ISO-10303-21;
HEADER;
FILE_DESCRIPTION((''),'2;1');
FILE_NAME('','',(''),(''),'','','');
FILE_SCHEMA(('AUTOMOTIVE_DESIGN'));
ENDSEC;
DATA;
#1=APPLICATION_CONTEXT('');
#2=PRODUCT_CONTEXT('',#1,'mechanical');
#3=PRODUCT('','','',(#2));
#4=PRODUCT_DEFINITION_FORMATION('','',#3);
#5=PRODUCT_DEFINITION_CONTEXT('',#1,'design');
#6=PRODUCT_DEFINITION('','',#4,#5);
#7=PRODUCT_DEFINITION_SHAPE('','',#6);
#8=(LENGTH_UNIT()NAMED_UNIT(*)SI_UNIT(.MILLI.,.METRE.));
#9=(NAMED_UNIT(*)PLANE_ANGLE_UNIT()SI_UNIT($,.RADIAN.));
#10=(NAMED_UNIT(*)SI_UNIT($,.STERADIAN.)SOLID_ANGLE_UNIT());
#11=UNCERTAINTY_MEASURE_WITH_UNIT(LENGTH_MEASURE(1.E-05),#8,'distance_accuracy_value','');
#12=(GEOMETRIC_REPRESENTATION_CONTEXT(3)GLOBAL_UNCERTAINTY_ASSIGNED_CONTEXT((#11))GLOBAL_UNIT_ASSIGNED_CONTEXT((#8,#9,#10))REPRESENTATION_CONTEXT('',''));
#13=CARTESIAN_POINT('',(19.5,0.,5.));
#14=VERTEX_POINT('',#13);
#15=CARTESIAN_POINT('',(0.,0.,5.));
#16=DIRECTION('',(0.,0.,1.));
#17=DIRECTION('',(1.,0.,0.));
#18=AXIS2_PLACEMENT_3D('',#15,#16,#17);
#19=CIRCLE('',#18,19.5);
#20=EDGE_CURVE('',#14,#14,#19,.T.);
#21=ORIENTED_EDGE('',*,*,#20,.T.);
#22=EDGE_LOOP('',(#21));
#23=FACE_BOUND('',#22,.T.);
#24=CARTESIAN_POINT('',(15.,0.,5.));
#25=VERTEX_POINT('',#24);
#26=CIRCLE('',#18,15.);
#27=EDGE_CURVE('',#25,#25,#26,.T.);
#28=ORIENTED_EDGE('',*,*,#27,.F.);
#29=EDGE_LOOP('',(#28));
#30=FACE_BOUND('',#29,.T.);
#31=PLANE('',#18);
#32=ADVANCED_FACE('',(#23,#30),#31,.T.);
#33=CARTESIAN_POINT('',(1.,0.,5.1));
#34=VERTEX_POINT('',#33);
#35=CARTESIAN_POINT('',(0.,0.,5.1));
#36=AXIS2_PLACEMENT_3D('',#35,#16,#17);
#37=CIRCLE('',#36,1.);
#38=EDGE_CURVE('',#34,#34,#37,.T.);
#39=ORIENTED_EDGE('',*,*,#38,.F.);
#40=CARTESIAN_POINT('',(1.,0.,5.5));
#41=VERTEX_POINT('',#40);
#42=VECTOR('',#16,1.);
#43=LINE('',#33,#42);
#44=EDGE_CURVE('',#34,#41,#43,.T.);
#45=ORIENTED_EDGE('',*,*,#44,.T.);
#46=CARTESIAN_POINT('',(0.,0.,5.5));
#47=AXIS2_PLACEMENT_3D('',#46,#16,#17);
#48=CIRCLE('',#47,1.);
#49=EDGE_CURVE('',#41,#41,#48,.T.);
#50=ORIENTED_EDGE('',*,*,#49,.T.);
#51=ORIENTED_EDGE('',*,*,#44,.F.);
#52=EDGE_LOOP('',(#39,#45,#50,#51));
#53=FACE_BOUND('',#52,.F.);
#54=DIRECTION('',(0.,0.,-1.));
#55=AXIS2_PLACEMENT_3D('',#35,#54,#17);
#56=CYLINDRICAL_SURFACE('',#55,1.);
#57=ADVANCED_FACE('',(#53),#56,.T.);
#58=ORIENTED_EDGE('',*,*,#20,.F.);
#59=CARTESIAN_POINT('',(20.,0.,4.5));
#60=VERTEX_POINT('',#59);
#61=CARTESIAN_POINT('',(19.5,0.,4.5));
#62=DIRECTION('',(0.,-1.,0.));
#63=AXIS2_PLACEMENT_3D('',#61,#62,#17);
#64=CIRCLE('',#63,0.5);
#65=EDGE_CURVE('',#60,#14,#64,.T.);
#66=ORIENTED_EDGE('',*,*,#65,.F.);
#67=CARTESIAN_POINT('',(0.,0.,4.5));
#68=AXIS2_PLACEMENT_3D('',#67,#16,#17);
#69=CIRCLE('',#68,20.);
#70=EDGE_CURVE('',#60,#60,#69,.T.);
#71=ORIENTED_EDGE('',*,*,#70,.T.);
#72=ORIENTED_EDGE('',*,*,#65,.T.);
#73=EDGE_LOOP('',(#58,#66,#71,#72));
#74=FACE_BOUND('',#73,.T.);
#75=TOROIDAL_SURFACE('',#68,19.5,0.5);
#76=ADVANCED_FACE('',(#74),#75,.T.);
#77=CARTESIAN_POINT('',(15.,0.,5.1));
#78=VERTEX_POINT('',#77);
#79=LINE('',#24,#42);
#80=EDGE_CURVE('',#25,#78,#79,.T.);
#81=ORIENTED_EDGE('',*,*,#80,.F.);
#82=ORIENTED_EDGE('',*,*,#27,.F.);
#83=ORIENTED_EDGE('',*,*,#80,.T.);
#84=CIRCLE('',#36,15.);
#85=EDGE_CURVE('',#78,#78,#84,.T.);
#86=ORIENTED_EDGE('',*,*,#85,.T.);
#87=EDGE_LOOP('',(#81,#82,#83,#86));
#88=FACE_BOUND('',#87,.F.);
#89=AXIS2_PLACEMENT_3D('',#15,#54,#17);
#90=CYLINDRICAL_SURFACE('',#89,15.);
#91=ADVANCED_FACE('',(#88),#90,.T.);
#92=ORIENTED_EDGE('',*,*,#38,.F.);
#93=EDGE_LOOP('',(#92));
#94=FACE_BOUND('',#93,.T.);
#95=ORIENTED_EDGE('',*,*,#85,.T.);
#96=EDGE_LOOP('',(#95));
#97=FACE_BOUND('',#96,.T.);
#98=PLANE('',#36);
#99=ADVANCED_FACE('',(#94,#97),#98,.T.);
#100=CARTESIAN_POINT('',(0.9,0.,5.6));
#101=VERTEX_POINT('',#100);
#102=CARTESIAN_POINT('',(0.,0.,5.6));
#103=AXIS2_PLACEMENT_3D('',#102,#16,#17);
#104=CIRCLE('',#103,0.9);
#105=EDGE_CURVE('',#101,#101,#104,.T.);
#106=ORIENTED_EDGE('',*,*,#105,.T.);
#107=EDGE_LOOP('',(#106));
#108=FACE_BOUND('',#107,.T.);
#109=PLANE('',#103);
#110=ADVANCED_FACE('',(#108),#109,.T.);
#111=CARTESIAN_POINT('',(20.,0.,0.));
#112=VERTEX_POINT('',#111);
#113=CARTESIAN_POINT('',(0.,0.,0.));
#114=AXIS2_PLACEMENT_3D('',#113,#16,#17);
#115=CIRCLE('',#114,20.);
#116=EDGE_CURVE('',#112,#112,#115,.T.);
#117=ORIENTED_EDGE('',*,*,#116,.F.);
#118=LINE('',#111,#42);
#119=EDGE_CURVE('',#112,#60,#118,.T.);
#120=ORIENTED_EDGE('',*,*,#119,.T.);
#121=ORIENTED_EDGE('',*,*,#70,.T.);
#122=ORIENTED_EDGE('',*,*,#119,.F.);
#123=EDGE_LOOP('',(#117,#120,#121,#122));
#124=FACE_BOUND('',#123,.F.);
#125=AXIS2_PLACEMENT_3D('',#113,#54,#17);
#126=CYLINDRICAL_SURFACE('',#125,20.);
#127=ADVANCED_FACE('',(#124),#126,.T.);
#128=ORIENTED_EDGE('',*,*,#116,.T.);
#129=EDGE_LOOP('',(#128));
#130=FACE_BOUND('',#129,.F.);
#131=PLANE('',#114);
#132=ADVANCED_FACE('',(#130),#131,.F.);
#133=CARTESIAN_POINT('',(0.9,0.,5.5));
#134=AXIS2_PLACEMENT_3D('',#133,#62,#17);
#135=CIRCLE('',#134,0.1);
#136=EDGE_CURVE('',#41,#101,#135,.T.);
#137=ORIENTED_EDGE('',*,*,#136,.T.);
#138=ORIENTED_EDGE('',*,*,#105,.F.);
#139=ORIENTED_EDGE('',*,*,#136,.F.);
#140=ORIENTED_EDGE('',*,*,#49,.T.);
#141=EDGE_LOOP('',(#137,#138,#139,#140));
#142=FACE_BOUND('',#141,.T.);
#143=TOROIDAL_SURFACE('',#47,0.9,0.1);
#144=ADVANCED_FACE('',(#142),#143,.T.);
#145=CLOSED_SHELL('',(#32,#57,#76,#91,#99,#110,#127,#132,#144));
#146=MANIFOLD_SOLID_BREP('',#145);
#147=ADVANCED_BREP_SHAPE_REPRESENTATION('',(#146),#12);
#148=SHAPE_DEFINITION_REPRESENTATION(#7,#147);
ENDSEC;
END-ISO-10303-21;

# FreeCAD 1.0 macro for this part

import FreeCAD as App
import Part
import Sketcher

V = App.Vector


def edges_at(feature, points):
    """Names of the edges that pass closest to the given points."""
    edges = feature.Shape.Edges
    near = lambda p: min(range(len(edges)), key=lambda i: edges[i].distToShape(Part.Vertex(*p))[0])
    return sorted({f"Edge{near(p) + 1}" for p in points})

doc = App.newDocument("Part")
body = doc.addObject("PartDesign::Body", "Body")

sketch1 = doc.addObject("Sketcher::SketchObject", "Sketch")
body.addObject(sketch1)
sketch1.AttachmentSupport = (doc.XY_Plane, [""])
sketch1.MapMode = "FlatFace"
sketch1.addGeometry(Part.Circle(V(0, 0, 0), V(0, 0, 1), 20), False)
sketch1.addConstraint([
    Sketcher.Constraint("Coincident", 0, 3, -1, 1),
    Sketcher.Constraint("Diameter", 0, 40.0),
])
pad1 = doc.addObject("PartDesign::Pad", "Pad")
body.addObject(pad1)
pad1.Profile = sketch1
pad1.Length = 5

sketch2 = doc.addObject("Sketcher::SketchObject", "Sketch001")
body.addObject(sketch2)
sketch2.AttachmentSupport = (doc.XY_Plane, [""])
sketch2.MapMode = "FlatFace"
sketch2.AttachmentOffset = App.Placement(V(0, 0, 5), App.Rotation())
sketch2.addGeometry(Part.Circle(V(0, 0, 0), V(0, 0, 1), 15), False)
sketch2.addConstraint([
    Sketcher.Constraint("Coincident", 0, 3, -1, 1),
    Sketcher.Constraint("Diameter", 0, 30.0),
])
pad2 = doc.addObject("PartDesign::Pad", "Pad001")
body.addObject(pad2)
pad2.Profile = sketch2
pad2.Length = 0.1
doc.recompute()

fillet = doc.addObject("PartDesign::Fillet", "Fillet")
body.addObject(fillet)
fillet.Base = (pad2, edges_at(pad2, [(-20, 0, 5)]))
fillet.Radius = 0.5

sketch3 = doc.addObject("Sketcher::SketchObject", "Sketch002")
body.addObject(sketch3)
sketch3.AttachmentSupport = (doc.XY_Plane, [""])
sketch3.MapMode = "FlatFace"
sketch3.AttachmentOffset = App.Placement(V(0, 0, 5.1), App.Rotation())
sketch3.addGeometry(Part.Circle(V(0, 0, 0), V(0, 0, 1), 1), False)
sketch3.addConstraint([
    Sketcher.Constraint("Coincident", 0, 3, -1, 1),
    Sketcher.Constraint("Diameter", 0, 2.0),
])
pad3 = doc.addObject("PartDesign::Pad", "Pad002")
body.addObject(pad3)
pad3.Profile = sketch3
pad3.Length = 0.5
doc.recompute()

fillet2 = doc.addObject("PartDesign::Fillet", "Fillet001")
body.addObject(fillet2)
fillet2.Base = (pad3, edges_at(pad3, [(-1, 0, 5.6)]))
fillet2.Radius = 0.1

doc.recompute()
